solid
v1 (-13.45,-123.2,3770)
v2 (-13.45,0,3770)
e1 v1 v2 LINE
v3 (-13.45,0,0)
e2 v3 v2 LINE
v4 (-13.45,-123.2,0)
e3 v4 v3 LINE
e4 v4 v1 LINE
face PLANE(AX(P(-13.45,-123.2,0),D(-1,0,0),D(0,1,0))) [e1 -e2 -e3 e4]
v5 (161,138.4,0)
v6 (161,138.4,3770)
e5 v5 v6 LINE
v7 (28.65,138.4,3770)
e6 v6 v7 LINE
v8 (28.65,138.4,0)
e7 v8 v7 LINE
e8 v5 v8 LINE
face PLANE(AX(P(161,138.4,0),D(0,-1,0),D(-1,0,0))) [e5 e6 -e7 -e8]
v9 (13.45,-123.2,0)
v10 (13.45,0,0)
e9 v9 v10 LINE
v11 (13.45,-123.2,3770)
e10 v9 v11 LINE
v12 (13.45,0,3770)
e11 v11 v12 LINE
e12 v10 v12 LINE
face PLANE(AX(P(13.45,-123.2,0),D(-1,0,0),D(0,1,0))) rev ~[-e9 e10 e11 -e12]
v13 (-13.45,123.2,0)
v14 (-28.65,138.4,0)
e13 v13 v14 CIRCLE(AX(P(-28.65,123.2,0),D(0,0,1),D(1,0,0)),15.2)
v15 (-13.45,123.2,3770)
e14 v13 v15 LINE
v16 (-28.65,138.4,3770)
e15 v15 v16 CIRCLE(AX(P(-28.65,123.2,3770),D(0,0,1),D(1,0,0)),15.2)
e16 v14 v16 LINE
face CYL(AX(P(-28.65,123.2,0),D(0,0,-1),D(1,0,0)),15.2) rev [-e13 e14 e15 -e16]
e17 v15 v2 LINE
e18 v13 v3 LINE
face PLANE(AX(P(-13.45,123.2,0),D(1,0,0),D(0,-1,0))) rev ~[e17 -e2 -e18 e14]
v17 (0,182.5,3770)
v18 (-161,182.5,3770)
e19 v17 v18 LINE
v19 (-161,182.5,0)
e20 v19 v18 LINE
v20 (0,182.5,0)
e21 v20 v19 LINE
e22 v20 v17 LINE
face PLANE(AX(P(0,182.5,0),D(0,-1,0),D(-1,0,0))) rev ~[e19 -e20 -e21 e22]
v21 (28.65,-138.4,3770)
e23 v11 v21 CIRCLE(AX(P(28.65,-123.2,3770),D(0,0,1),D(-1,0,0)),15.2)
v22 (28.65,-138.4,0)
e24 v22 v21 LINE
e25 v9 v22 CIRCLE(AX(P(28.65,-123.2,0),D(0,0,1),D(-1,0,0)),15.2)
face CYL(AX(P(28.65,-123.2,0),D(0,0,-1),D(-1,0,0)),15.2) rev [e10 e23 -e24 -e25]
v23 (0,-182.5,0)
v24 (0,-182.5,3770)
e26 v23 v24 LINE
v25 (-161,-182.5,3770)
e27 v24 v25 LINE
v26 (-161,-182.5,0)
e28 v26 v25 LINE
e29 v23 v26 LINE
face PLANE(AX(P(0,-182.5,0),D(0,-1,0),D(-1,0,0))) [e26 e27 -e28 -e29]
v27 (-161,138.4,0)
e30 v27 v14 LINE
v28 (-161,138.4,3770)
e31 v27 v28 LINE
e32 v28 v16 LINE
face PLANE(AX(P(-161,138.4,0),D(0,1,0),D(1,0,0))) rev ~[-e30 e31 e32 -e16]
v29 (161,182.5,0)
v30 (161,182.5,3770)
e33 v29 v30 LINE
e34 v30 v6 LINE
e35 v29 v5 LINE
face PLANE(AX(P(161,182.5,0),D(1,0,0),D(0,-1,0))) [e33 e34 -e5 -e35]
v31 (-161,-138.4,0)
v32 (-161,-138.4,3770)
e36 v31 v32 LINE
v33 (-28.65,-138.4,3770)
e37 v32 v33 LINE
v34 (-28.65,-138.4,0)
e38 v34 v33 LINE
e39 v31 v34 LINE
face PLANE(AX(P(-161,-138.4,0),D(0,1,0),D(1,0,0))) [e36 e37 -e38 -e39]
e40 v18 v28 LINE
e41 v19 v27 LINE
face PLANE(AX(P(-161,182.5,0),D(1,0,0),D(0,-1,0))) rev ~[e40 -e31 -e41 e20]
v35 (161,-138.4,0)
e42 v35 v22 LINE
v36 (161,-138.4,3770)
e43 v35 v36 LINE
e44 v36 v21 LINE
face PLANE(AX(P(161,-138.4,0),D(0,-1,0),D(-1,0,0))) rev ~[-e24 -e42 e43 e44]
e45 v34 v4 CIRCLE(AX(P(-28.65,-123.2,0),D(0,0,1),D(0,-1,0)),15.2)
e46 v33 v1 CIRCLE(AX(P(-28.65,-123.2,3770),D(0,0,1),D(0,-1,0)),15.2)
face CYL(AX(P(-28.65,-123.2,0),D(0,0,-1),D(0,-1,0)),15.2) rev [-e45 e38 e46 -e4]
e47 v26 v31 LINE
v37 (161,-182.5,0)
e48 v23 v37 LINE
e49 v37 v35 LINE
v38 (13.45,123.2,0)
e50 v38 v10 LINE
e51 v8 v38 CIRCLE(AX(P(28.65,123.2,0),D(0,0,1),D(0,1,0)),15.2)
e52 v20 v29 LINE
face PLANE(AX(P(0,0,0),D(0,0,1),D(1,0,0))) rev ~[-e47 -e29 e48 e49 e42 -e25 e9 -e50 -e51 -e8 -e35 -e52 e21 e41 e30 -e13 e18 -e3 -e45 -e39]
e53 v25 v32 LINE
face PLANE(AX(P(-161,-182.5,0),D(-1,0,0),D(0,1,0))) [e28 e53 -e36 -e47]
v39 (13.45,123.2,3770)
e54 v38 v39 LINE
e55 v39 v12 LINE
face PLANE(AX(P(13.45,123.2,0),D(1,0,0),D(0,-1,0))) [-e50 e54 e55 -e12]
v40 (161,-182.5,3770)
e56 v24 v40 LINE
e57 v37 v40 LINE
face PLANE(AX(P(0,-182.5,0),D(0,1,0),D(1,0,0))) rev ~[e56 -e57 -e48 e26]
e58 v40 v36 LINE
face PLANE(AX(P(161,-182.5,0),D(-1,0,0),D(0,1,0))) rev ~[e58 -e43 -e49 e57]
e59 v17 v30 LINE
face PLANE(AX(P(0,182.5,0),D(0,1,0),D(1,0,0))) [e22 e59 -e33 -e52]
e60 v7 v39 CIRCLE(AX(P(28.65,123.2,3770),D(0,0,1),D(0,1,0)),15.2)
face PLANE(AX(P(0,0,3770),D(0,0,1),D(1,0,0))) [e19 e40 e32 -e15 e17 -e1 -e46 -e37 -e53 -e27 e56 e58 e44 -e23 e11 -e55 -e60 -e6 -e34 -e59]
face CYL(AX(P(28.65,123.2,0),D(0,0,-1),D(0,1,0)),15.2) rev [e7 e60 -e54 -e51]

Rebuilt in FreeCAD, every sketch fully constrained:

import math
import FreeCAD as App
import Part
import Sketcher

doc = App.newDocument("Part")
params = doc.addObject("Spreadsheet::Sheet", "Params")
for row, (alias, value) in enumerate([
    ("sketch1_radius", "15.2 mm"),
    ("sketch1_height", "44.1 mm"),
    ("pad1_length", "3770 mm"),
], start=1):
    params.set(f"A{row}", alias)
    params.set(f"B{row}", "=" + value)
    params.setAlias(f"B{row}", alias)

body = doc.addObject("PartDesign::Body", "Body")

sketch1 = body.newObject("Sketcher::SketchObject", "Sketch")
sketch1.AttachmentSupport = (doc.getObject("XY_Plane"), [""])
sketch1.MapMode = "FlatFace"
sketch1.addGeometry(Part.LineSegment(App.Vector(-161, -138.4, 0), App.Vector(-161, -182.5, 0)), False)
sketch1.addGeometry(Part.LineSegment(App.Vector(-161, -182.5, 0), App.Vector(161, -182.5, 0)), False)
sketch1.addGeometry(Part.LineSegment(App.Vector(161, -182.5, 0), App.Vector(161, -138.4, 0)), False)
sketch1.addGeometry(Part.LineSegment(App.Vector(161, -138.4, 0), App.Vector(28.65, -138.4, 0)), False)
sketch1.addGeometry(Part.ArcOfCircle(Part.Circle(App.Vector(28.65, -123.2, 0), App.Vector(0, 0, 1), 15.2), math.radians(180), math.radians(270)), False)
sketch1.addGeometry(Part.LineSegment(App.Vector(13.45, -123.2, 0), App.Vector(13.45, 123.2, 0)), False)
sketch1.addGeometry(Part.ArcOfCircle(Part.Circle(App.Vector(28.65, 123.2, 0), App.Vector(0, 0, 1), 15.2), math.radians(90), math.radians(180)), False)
sketch1.addGeometry(Part.LineSegment(App.Vector(28.65, 138.4, 0), App.Vector(161, 138.4, 0)), False)
sketch1.addGeometry(Part.LineSegment(App.Vector(161, 138.4, 0), App.Vector(161, 182.5, 0)), False)
sketch1.addGeometry(Part.LineSegment(App.Vector(161, 182.5, 0), App.Vector(-161, 182.5, 0)), False)
sketch1.addGeometry(Part.LineSegment(App.Vector(-161, 182.5, 0), App.Vector(-161, 138.4, 0)), False)
sketch1.addGeometry(Part.LineSegment(App.Vector(-161, 138.4, 0), App.Vector(-28.65, 138.4, 0)), False)
sketch1.addGeometry(Part.ArcOfCircle(Part.Circle(App.Vector(-28.65, 123.2, 0), App.Vector(0, 0, 1), 15.2), math.radians(0), math.radians(90)), False)
sketch1.addGeometry(Part.LineSegment(App.Vector(-13.45, 123.2, 0), App.Vector(-13.45, -123.2, 0)), False)
sketch1.addGeometry(Part.ArcOfCircle(Part.Circle(App.Vector(-28.65, -123.2, 0), App.Vector(0, 0, 1), 15.2), math.radians(-90), math.radians(0)), False)
sketch1.addGeometry(Part.LineSegment(App.Vector(-28.65, -138.4, 0), App.Vector(-161, -138.4, 0)), False)
sketch1.addConstraint(Sketcher.Constraint("Coincident", 0, 2, 1, 1))
sketch1.addConstraint(Sketcher.Constraint("Coincident", 1, 2, 2, 1))
sketch1.addConstraint(Sketcher.Constraint("Coincident", 2, 2, 3, 1))
sketch1.addConstraint(Sketcher.Constraint("Tangent", 3, 2, 4, 2))
sketch1.addConstraint(Sketcher.Constraint("Tangent", 4, 1, 5, 1))
sketch1.addConstraint(Sketcher.Constraint("Tangent", 5, 2, 6, 2))
sketch1.addConstraint(Sketcher.Constraint("Tangent", 6, 1, 7, 1))
sketch1.addConstraint(Sketcher.Constraint("Coincident", 7, 2, 8, 1))
sketch1.addConstraint(Sketcher.Constraint("Coincident", 8, 2, 9, 1))
sketch1.addConstraint(Sketcher.Constraint("Coincident", 9, 2, 10, 1))
sketch1.addConstraint(Sketcher.Constraint("Coincident", 10, 2, 11, 1))
sketch1.addConstraint(Sketcher.Constraint("Tangent", 11, 2, 12, 2))
sketch1.addConstraint(Sketcher.Constraint("Tangent", 12, 1, 13, 1))
sketch1.addConstraint(Sketcher.Constraint("Tangent", 13, 2, 14, 2))
sketch1.addConstraint(Sketcher.Constraint("Tangent", 14, 1, 15, 1))
sketch1.addConstraint(Sketcher.Constraint("Coincident", 15, 2, 0, 1))
sketch1.addConstraint(Sketcher.Constraint("Vertical", 0))
sketch1.addConstraint(Sketcher.Constraint("Horizontal", 1))
sketch1.addConstraint(Sketcher.Constraint("Vertical", 2))
sketch1.addConstraint(Sketcher.Constraint("Horizontal", 3))
sketch1.addConstraint(Sketcher.Constraint("Vertical", 5))
sketch1.addConstraint(Sketcher.Constraint("Horizontal", 7))
sketch1.addConstraint(Sketcher.Constraint("Vertical", 8))
sketch1.addConstraint(Sketcher.Constraint("Horizontal", 9))
sketch1.addConstraint(Sketcher.Constraint("Vertical", 10))
sketch1.addConstraint(Sketcher.Constraint("Horizontal", 11))
sketch1.addConstraint(Sketcher.Constraint("Vertical", 13))
sketch1.addConstraint(Sketcher.Constraint("Horizontal", 15))
sketch1.addConstraint(Sketcher.Constraint("Equal", 4, 6))
sketch1.addConstraint(Sketcher.Constraint("Equal", 6, 12))
sketch1.addConstraint(Sketcher.Constraint("Equal", 12, 14))
sketch1.addConstraint(Sketcher.Constraint("Symmetric", 4, 3, 12, 3, -1, 1))
sketch1.addConstraint(Sketcher.Constraint("Symmetric", 0, 2, 8, 2, -1, 1))
sketch1.addConstraint(Sketcher.Constraint("Symmetric", 7, 2, 10, 2, -2))
sketch1.addConstraint(Sketcher.Constraint("Symmetric", 2, 2, 15, 2, -2))
sketch1.addConstraint(Sketcher.Constraint("Radius", 4, 15.2))
sketch1.addConstraint(Sketcher.Constraint("DistanceY", 0, 2, 0, 1, 44.1))
sketch1.addConstraint(Sketcher.Constraint("DistanceX", 0, 2, -1, 1, 161.0))
sketch1.addConstraint(Sketcher.Constraint("DistanceY", 0, 2, -1, 1, 182.5))
sketch1.addConstraint(Sketcher.Constraint("DistanceX", -1, 1, 4, 1, 13.45))
sketch1.setExpression("Constraints[35]", "Params.sketch1_radius")
sketch1.setExpression("Constraints[36]", "Params.sketch1_height")
pad1 = body.newObject("PartDesign::Pad", "Pad")
pad1.Profile = sketch1
pad1.setExpression("Length", "Params.pad1_length")

doc.recompute()
